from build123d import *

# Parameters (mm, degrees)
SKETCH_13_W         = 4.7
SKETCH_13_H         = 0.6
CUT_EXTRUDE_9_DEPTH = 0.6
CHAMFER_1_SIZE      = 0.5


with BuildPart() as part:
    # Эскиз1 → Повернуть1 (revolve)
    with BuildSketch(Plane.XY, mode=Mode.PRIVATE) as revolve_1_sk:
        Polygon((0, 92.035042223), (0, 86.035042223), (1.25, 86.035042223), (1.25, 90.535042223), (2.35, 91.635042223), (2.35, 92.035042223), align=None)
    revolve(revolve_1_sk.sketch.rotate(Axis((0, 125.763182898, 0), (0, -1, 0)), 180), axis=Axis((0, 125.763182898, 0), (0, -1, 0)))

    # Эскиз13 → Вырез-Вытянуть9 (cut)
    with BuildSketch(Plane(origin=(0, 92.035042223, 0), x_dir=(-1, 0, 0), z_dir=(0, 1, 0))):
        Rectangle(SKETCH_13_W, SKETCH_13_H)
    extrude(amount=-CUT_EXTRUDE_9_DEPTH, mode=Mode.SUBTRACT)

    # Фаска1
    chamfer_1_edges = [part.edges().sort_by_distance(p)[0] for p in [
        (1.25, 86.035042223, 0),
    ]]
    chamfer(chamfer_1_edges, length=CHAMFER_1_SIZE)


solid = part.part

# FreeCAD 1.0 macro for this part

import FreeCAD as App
import Part
import Sketcher

V = App.Vector
Q = App.Units.Quantity


def edges_at(feature, points):
    """Names of the edges that pass closest to the given points."""
    edges = feature.Shape.Edges
    near = lambda p: min(range(len(edges)), key=lambda i: edges[i].distToShape(Part.Vertex(*p))[0])
    return sorted({f"Edge{near(p) + 1}" for p in points})

doc = App.newDocument("Part")
body = doc.addObject("PartDesign::Body", "Body")

# Sketch on XY plane
sketch1 = doc.addObject("Sketcher::SketchObject", "Sketch")
body.addObject(sketch1)
sketch1.AttachmentSupport = (doc.XY_Plane, [""])
sketch1.MapMode = "FlatFace"
sketch1.addGeometry([
    Part.LineSegment(V(0, 92.04, 0), V(0, 86.04, 0)),  # 0
    Part.LineSegment(V(0, 86.04, 0), V(1.25, 86.04, 0)),  # 1
    Part.LineSegment(V(1.25, 86.04, 0), V(1.25, 90.54, 0)),  # 2
    Part.LineSegment(V(1.25, 90.54, 0), V(2.35, 91.64, 0)),  # 3
    Part.LineSegment(V(2.35, 91.64, 0), V(2.35, 92.04, 0)),  # 4
    Part.LineSegment(V(2.35, 92.04, 0), V(0, 92.04, 0)),  # 5
], False)
sketch1.addConstraint([
    Sketcher.Constraint("Coincident", 0, 2, 1, 1),
    Sketcher.Constraint("Coincident", 1, 2, 2, 1),
    Sketcher.Constraint("Coincident", 2, 2, 3, 1),
    Sketcher.Constraint("Coincident", 3, 2, 4, 1),
    Sketcher.Constraint("Coincident", 4, 2, 5, 1),
    Sketcher.Constraint("Coincident", 5, 2, 0, 1),
    Sketcher.Constraint("Vertical", 0),
    Sketcher.Constraint("Horizontal", 1),
    Sketcher.Constraint("Vertical", 2),
    Sketcher.Constraint("Vertical", 4),
    Sketcher.Constraint("Horizontal", 5),
    Sketcher.Constraint("PointOnObject", 0, 2, -2),
    Sketcher.Constraint("DistanceY", 0, 2, 0, 1, Q("6 mm")),
    Sketcher.Constraint("Angle", 3, Q("45 deg")),
    Sketcher.Constraint("DistanceY", 2, 1, 2, 2, Q("4.5 mm")),
    Sketcher.Constraint("DistanceY", 4, 1, 4, 2, Q("0.4 mm")),
    Sketcher.Constraint("DistanceX", 1, 1, 1, 2, Q("1.25 mm")),
    Sketcher.Constraint("DistanceY", -1, 1, 0, 2, Q("86.035042 mm")),
])
revolution = doc.addObject("PartDesign::Revolution", "Revolution")
body.addObject(revolution)
revolution.Profile = sketch1
revolution.ReferenceAxis = (sketch1, ["V_Axis"])
revolution.Angle = 360

# Sketch on XZ plane
sketch2 = doc.addObject("Sketcher::SketchObject", "Sketch001")
body.addObject(sketch2)
sketch2.AttachmentSupport = (doc.XZ_Plane, [""])
sketch2.MapMode = "FlatFace"
sketch2.AttachmentOffset = App.Placement(V(0, 0, -92.035042), App.Rotation())
sketch2.addGeometry([
    Part.LineSegment(V(2.4, 0.3, 0), V(2.4, -0.3, 0)),
    Part.LineSegment(V(2.4, -0.3, 0), V(-2.4, -0.3, 0)),
    Part.LineSegment(V(-2.4, -0.3, 0), V(-2.4, 0.3, 0)),
    Part.LineSegment(V(-2.4, 0.3, 0), V(2.4, 0.3, 0)),
], False)
sketch2.addConstraint([
    Sketcher.Constraint("Coincident", 0, 2, 1, 1),
    Sketcher.Constraint("Coincident", 1, 2, 2, 1),
    Sketcher.Constraint("Coincident", 2, 2, 3, 1),
    Sketcher.Constraint("Coincident", 3, 2, 0, 1),
    Sketcher.Constraint("Vertical", 0),
    Sketcher.Constraint("Horizontal", 1),
    Sketcher.Constraint("Vertical", 2),
    Sketcher.Constraint("Horizontal", 3),
    Sketcher.Constraint("Symmetric", 0, 2, 2, 2, -1, 1),
    Sketcher.Constraint("DistanceX", 1, 2, 1, 1, Q("4.7 mm")),
    Sketcher.Constraint("DistanceY", 0, 2, 0, 1, Q("0.6 mm")),
])
pocket1 = doc.addObject("PartDesign::Pocket", "Pocket")
body.addObject(pocket1)
pocket1.Profile = sketch2
pocket1.Length = 0.6
pocket1.Reversed = True
doc.recompute()

chamfer = doc.addObject("PartDesign::Chamfer", "Chamfer")
body.addObject(chamfer)
chamfer.Base = (pocket1, edges_at(pocket1, [(1.25, 86.035, 0)]))
chamfer.Size = 0.5

doc.recompute()
